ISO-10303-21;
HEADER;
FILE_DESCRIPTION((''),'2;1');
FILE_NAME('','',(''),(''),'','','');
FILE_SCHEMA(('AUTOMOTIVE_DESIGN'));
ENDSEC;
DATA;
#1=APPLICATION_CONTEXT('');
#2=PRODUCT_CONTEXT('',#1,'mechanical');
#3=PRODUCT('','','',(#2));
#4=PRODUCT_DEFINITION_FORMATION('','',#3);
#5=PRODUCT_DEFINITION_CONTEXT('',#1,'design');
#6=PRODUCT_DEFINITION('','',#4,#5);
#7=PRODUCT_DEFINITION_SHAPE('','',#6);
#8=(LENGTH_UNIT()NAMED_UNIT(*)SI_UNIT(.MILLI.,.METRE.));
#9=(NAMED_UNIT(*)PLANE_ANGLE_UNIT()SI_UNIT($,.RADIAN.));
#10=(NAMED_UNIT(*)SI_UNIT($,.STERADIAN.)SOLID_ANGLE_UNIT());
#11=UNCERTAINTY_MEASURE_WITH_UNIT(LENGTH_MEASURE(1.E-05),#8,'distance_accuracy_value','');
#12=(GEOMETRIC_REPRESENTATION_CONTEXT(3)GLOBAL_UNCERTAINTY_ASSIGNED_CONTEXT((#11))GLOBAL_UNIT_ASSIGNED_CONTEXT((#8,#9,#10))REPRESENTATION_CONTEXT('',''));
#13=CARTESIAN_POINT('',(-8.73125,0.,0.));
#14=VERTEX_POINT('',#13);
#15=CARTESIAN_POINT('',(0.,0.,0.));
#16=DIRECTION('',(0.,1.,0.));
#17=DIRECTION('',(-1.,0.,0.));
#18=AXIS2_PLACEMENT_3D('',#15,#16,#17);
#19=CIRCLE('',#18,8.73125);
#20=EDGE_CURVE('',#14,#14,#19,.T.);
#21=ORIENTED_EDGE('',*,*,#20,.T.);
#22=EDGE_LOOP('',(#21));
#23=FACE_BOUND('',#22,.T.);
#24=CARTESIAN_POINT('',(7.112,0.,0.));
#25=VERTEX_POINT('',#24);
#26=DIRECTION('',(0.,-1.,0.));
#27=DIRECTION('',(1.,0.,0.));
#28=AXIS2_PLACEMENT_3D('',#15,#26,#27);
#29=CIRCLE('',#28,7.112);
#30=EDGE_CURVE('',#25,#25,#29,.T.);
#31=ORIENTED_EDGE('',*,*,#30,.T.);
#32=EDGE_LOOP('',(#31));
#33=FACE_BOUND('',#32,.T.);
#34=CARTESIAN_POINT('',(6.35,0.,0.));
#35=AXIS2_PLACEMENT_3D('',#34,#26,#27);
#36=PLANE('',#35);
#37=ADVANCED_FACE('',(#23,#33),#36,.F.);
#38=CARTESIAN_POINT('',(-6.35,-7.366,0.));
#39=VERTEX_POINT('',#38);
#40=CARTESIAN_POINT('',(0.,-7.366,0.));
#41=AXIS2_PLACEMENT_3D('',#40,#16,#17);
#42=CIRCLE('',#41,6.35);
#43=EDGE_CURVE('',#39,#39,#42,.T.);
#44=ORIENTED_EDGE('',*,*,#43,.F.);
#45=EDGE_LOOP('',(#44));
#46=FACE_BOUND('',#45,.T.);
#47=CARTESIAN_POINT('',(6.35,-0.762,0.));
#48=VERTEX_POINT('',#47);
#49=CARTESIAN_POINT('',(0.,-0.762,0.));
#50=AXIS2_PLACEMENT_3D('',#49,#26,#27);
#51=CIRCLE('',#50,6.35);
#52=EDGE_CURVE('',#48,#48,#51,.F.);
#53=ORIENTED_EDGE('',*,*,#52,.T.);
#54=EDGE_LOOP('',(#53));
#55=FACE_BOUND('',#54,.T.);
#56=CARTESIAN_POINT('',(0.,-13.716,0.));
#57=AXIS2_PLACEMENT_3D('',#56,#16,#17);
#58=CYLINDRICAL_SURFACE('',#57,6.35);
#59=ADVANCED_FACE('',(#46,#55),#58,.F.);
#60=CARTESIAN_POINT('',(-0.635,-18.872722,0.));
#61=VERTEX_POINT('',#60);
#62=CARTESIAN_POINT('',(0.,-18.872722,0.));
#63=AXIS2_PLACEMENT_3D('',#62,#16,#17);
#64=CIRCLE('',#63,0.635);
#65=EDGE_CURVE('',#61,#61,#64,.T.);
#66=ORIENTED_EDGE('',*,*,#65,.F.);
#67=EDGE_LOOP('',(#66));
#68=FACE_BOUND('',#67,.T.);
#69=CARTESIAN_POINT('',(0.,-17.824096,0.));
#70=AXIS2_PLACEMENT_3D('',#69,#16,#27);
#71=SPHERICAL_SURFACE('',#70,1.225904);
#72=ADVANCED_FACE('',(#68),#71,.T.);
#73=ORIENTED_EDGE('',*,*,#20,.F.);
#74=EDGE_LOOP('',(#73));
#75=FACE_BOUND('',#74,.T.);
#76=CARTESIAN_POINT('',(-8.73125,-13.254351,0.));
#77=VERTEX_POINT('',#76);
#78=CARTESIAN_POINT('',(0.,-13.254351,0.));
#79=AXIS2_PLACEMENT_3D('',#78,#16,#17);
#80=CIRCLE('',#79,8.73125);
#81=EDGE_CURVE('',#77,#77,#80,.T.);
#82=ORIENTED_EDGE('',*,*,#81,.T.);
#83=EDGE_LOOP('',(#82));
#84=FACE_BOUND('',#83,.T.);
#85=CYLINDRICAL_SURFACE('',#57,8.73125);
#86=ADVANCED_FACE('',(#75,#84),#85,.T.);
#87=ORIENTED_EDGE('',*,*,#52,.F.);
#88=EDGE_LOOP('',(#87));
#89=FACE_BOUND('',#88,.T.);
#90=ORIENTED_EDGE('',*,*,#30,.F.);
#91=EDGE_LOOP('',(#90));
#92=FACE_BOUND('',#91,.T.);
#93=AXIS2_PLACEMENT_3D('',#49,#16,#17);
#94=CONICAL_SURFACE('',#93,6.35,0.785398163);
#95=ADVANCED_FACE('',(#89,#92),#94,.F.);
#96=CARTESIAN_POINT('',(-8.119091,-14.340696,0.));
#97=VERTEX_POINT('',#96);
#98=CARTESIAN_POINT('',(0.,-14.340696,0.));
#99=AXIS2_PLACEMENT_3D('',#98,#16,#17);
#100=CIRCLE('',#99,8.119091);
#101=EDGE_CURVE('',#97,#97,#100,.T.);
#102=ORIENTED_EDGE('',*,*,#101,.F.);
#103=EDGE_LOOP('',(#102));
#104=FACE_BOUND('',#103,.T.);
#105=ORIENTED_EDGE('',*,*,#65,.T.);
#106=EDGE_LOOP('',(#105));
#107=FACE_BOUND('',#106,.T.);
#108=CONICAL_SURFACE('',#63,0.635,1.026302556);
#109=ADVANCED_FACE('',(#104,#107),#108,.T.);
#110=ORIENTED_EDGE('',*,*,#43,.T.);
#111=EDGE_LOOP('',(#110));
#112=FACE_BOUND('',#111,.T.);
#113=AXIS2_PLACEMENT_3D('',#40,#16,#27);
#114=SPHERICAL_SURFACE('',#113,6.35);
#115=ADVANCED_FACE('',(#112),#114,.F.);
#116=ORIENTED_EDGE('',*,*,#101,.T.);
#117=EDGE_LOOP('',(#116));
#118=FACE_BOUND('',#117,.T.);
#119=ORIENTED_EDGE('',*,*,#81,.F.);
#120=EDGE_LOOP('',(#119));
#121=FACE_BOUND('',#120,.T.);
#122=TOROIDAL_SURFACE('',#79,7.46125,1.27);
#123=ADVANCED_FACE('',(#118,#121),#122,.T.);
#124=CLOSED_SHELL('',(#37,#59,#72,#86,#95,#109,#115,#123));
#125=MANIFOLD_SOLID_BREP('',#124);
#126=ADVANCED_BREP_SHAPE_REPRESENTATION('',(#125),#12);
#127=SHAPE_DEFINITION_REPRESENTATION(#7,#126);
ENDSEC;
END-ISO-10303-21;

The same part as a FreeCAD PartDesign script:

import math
import FreeCAD as App
import Part
import Sketcher
Q = App.Units.Quantity


def edges_at(feature, points):
    """Names of the edges that pass closest to the given points."""
    edges = feature.Shape.Edges
    near = lambda p: min(range(len(edges)), key=lambda i: edges[i].distToShape(Part.Vertex(*p))[0])
    return sorted({f"Edge{near(p) + 1}" for p in points})

doc = App.newDocument("Part")
body = doc.addObject("PartDesign::Body", "Body")

sketch1 = body.newObject("Sketcher::SketchObject", "Sketch")
sketch1.AttachmentSupport = (doc.getObject("XY_Plane"), [""])
sketch1.MapMode = "FlatFace"
sketch1.addGeometry(Part.LineSegment(App.Vector(8.73125, 0, 0), App.Vector(6.35, 0, 0)), False)
sketch1.addGeometry(Part.LineSegment(App.Vector(6.35, 0, 0), App.Vector(6.35, -7.366, 0)), False)
sketch1.addGeometry(Part.ArcOfCircle(Part.Circle(App.Vector(0, -7.366, 0), App.Vector(0, 0, 1), 6.35), math.radians(-90), math.radians(0)), False)
sketch1.addGeometry(Part.LineSegment(App.Vector(0, -13.716, 0), App.Vector(0, -19.05, 0)), False)
sketch1.addGeometry(Part.ArcOfCircle(Part.Circle(App.Vector(0, -17.824096, 0), App.Vector(0, 0, 1), 1.225904), math.radians(-90), math.radians(-58.802805)), False)
sketch1.addGeometry(Part.LineSegment(App.Vector(0.635, -18.872722, 0), App.Vector(8.119091, -14.340696, 0)), False)
sketch1.addGeometry(Part.ArcOfCircle(Part.Circle(App.Vector(7.46125, -13.254351, 0), App.Vector(0, 0, 1), 1.27), math.radians(-58.802805), math.radians(0)), False)
sketch1.addGeometry(Part.LineSegment(App.Vector(8.73125, -13.254351, 0), App.Vector(8.73125, 0, 0)), False)
sketch1.addConstraint(Sketcher.Constraint("Coincident", 0, 2, 1, 1))
sketch1.addConstraint(Sketcher.Constraint("Tangent", 1, 2, 2, 2))
sketch1.addConstraint(Sketcher.Constraint("Coincident", 2, 1, 3, 1))
sketch1.addConstraint(Sketcher.Constraint("Coincident", 3, 2, 4, 1))
sketch1.addConstraint(Sketcher.Constraint("Tangent", 4, 2, 5, 1))
sketch1.addConstraint(Sketcher.Constraint("Tangent", 5, 2, 6, 1))
sketch1.addConstraint(Sketcher.Constraint("Tangent", 6, 2, 7, 1))
sketch1.addConstraint(Sketcher.Constraint("Coincident", 7, 2, 0, 1))
sketch1.addConstraint(Sketcher.Constraint("Horizontal", 0))
sketch1.addConstraint(Sketcher.Constraint("Vertical", 1))
sketch1.addConstraint(Sketcher.Constraint("Vertical", 3))
sketch1.addConstraint(Sketcher.Constraint("Vertical", 7))
sketch1.addConstraint(Sketcher.Constraint("PointOnObject", 2, 3, -2))
sketch1.addConstraint(Sketcher.Constraint("PointOnObject", 4, 3, -2))
sketch1.addConstraint(Sketcher.Constraint("PointOnObject", 0, 2, -1))
sketch1.addConstraint(Sketcher.Constraint("PointOnObject", 2, 1, -2))
sketch1.addConstraint(Sketcher.Constraint("Radius", 2, Q("0.25 in")))
sketch1.addConstraint(Sketcher.Constraint("Radius", 6, Q("0.05 in")))
sketch1.addConstraint(Sketcher.Constraint("DistanceY", 1, 2, 1, 1, Q("0.29 in")))
sketch1.addConstraint(Sketcher.Constraint("DistanceY", 3, 2, 3, 1, Q("0.21 in")))
sketch1.addConstraint(Sketcher.Constraint("DistanceX", 0, 2, 0, 1, Q("0.09375 in")))
sketch1.addConstraint(Sketcher.Constraint("DistanceX", -1, 1, 4, 2, Q("0.025 in")))
sketch1.addConstraint(Sketcher.Constraint("Radius", 4, 1.225904))
revolution = body.newObject("PartDesign::Revolution", "Revolution")
revolution.Profile = sketch1
revolution.ReferenceAxis = (sketch1, ["V_Axis"])
revolution.Angle = 360
doc.recompute()

chamfer = body.newObject("PartDesign::Chamfer", "Chamfer")
chamfer.Base = (revolution, edges_at(revolution, [(-6.35, 0, 0)]))
chamfer.Size = Q("0.03 in")

doc.recompute()
